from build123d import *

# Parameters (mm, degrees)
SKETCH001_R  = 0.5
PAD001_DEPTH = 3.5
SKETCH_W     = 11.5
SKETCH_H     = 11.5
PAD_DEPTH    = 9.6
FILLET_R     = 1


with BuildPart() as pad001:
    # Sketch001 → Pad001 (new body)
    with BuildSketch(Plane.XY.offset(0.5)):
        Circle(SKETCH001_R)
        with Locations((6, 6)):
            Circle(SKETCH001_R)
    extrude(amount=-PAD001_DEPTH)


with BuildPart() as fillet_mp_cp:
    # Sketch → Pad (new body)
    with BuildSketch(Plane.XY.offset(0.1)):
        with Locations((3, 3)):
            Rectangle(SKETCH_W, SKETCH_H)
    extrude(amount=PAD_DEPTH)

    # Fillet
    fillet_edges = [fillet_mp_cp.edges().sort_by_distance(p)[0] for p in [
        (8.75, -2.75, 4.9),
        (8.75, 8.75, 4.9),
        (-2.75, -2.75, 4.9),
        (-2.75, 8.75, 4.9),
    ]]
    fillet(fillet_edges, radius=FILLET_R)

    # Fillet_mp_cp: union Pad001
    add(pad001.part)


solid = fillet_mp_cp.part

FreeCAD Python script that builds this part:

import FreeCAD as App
import Part
import Sketcher

V = App.Vector


def edges_at(feature, points):
    """Names of the edges that pass closest to the given points."""
    edges = feature.Shape.Edges
    near = lambda p: min(range(len(edges)), key=lambda i: edges[i].distToShape(Part.Vertex(*p))[0])
    return sorted({f"Edge{near(p) + 1}" for p in points})


def add_polygon(sketch, points):
    """Adds a closed chain of lines whose ends are joined by coincident constraints."""
    first, n = sketch.GeometryCount, len(points)
    for a, b in zip(points, points[1:] + points[:1]):
        sketch.addGeometry(Part.LineSegment(App.Vector(*a, 0), App.Vector(*b, 0)), False)
    for i in range(n):
        sketch.addConstraint(Sketcher.Constraint("Coincident", first + i, 2, first + (i + 1) % n, 1))

doc = App.newDocument("Part")
body = doc.addObject("PartDesign::Body", "Body")
body.AllowCompound = True

sketch1 = body.newObject("Sketcher::SketchObject", "Sketch")
sketch1.AttachmentSupport = (doc.getObject("XY_Plane"), [""])
sketch1.MapMode = "FlatFace"
sketch1.AttachmentOffset = App.Placement(V(0, 0, 0.5), App.Rotation())
sketch1.addGeometry(Part.Circle(V(0, 0, 0), V(0, 0, 1), 0.5), False)
sketch1.addGeometry(Part.Circle(V(6, 6, 0), V(0, 0, 1), 0.5), False)
sketch1.addConstraint(Sketcher.Constraint("Coincident", 0, 3, -1, 1))
sketch1.addConstraint(Sketcher.Constraint("Equal", 0, 1))
sketch1.addConstraint(Sketcher.Constraint("Diameter", 0, 1.0))
sketch1.addConstraint(Sketcher.Constraint("DistanceX", -1, 1, 1, 3, 6.0))
sketch1.addConstraint(Sketcher.Constraint("DistanceY", -1, 1, 1, 3, 6.0))
pad1 = body.newObject("PartDesign::Pad", "Pad")
pad1.Profile = sketch1
pad1.Length = 3.5
pad1.Reversed = True
body2 = doc.addObject("PartDesign::Body", "Body001")

sketch2 = body2.newObject("Sketcher::SketchObject", "Sketch001")
sketch2.AttachmentSupport = (doc.getObject("XY_Plane001"), [""])
sketch2.MapMode = "FlatFace"
sketch2.AttachmentOffset = App.Placement(V(0, 0, 0.1), App.Rotation())
add_polygon(sketch2, [(-3, 9), (-3, -3), (9, -3), (9, 9)])
sketch2.addConstraint(Sketcher.Constraint("Vertical", 0))
sketch2.addConstraint(Sketcher.Constraint("Horizontal", 1))
sketch2.addConstraint(Sketcher.Constraint("Vertical", 2))
sketch2.addConstraint(Sketcher.Constraint("Horizontal", 3))
sketch2.addConstraint(Sketcher.Constraint("Equal", 3, 0))
sketch2.addConstraint(Sketcher.Constraint("DistanceX", 1, 1, 1, 2, 11.5))
sketch2.addConstraint(Sketcher.Constraint("DistanceX", 0, 2, -1, 1, 2.75))
sketch2.addConstraint(Sketcher.Constraint("DistanceY", 0, 2, -1, 1, 2.75))
pad2 = body2.newObject("PartDesign::Pad", "Pad001")
pad2.Profile = sketch2
pad2.Length = 9.6
doc.recompute()

fillet = body2.newObject("PartDesign::Fillet", "Fillet")
fillet.Base = (pad2, edges_at(pad2, [
    (8.75, -2.75, 4.9),
    (8.75, 8.75, 4.9),
    (-2.75, -2.75, 4.9),
    (-2.75, 8.75, 4.9),
]))
fillet.Radius = 1
doc.recompute()

boolean = body2.newObject("PartDesign::Boolean", "Boolean")
boolean.Type = "Fuse"
boolean.addObjects([body])

doc.recompute()
